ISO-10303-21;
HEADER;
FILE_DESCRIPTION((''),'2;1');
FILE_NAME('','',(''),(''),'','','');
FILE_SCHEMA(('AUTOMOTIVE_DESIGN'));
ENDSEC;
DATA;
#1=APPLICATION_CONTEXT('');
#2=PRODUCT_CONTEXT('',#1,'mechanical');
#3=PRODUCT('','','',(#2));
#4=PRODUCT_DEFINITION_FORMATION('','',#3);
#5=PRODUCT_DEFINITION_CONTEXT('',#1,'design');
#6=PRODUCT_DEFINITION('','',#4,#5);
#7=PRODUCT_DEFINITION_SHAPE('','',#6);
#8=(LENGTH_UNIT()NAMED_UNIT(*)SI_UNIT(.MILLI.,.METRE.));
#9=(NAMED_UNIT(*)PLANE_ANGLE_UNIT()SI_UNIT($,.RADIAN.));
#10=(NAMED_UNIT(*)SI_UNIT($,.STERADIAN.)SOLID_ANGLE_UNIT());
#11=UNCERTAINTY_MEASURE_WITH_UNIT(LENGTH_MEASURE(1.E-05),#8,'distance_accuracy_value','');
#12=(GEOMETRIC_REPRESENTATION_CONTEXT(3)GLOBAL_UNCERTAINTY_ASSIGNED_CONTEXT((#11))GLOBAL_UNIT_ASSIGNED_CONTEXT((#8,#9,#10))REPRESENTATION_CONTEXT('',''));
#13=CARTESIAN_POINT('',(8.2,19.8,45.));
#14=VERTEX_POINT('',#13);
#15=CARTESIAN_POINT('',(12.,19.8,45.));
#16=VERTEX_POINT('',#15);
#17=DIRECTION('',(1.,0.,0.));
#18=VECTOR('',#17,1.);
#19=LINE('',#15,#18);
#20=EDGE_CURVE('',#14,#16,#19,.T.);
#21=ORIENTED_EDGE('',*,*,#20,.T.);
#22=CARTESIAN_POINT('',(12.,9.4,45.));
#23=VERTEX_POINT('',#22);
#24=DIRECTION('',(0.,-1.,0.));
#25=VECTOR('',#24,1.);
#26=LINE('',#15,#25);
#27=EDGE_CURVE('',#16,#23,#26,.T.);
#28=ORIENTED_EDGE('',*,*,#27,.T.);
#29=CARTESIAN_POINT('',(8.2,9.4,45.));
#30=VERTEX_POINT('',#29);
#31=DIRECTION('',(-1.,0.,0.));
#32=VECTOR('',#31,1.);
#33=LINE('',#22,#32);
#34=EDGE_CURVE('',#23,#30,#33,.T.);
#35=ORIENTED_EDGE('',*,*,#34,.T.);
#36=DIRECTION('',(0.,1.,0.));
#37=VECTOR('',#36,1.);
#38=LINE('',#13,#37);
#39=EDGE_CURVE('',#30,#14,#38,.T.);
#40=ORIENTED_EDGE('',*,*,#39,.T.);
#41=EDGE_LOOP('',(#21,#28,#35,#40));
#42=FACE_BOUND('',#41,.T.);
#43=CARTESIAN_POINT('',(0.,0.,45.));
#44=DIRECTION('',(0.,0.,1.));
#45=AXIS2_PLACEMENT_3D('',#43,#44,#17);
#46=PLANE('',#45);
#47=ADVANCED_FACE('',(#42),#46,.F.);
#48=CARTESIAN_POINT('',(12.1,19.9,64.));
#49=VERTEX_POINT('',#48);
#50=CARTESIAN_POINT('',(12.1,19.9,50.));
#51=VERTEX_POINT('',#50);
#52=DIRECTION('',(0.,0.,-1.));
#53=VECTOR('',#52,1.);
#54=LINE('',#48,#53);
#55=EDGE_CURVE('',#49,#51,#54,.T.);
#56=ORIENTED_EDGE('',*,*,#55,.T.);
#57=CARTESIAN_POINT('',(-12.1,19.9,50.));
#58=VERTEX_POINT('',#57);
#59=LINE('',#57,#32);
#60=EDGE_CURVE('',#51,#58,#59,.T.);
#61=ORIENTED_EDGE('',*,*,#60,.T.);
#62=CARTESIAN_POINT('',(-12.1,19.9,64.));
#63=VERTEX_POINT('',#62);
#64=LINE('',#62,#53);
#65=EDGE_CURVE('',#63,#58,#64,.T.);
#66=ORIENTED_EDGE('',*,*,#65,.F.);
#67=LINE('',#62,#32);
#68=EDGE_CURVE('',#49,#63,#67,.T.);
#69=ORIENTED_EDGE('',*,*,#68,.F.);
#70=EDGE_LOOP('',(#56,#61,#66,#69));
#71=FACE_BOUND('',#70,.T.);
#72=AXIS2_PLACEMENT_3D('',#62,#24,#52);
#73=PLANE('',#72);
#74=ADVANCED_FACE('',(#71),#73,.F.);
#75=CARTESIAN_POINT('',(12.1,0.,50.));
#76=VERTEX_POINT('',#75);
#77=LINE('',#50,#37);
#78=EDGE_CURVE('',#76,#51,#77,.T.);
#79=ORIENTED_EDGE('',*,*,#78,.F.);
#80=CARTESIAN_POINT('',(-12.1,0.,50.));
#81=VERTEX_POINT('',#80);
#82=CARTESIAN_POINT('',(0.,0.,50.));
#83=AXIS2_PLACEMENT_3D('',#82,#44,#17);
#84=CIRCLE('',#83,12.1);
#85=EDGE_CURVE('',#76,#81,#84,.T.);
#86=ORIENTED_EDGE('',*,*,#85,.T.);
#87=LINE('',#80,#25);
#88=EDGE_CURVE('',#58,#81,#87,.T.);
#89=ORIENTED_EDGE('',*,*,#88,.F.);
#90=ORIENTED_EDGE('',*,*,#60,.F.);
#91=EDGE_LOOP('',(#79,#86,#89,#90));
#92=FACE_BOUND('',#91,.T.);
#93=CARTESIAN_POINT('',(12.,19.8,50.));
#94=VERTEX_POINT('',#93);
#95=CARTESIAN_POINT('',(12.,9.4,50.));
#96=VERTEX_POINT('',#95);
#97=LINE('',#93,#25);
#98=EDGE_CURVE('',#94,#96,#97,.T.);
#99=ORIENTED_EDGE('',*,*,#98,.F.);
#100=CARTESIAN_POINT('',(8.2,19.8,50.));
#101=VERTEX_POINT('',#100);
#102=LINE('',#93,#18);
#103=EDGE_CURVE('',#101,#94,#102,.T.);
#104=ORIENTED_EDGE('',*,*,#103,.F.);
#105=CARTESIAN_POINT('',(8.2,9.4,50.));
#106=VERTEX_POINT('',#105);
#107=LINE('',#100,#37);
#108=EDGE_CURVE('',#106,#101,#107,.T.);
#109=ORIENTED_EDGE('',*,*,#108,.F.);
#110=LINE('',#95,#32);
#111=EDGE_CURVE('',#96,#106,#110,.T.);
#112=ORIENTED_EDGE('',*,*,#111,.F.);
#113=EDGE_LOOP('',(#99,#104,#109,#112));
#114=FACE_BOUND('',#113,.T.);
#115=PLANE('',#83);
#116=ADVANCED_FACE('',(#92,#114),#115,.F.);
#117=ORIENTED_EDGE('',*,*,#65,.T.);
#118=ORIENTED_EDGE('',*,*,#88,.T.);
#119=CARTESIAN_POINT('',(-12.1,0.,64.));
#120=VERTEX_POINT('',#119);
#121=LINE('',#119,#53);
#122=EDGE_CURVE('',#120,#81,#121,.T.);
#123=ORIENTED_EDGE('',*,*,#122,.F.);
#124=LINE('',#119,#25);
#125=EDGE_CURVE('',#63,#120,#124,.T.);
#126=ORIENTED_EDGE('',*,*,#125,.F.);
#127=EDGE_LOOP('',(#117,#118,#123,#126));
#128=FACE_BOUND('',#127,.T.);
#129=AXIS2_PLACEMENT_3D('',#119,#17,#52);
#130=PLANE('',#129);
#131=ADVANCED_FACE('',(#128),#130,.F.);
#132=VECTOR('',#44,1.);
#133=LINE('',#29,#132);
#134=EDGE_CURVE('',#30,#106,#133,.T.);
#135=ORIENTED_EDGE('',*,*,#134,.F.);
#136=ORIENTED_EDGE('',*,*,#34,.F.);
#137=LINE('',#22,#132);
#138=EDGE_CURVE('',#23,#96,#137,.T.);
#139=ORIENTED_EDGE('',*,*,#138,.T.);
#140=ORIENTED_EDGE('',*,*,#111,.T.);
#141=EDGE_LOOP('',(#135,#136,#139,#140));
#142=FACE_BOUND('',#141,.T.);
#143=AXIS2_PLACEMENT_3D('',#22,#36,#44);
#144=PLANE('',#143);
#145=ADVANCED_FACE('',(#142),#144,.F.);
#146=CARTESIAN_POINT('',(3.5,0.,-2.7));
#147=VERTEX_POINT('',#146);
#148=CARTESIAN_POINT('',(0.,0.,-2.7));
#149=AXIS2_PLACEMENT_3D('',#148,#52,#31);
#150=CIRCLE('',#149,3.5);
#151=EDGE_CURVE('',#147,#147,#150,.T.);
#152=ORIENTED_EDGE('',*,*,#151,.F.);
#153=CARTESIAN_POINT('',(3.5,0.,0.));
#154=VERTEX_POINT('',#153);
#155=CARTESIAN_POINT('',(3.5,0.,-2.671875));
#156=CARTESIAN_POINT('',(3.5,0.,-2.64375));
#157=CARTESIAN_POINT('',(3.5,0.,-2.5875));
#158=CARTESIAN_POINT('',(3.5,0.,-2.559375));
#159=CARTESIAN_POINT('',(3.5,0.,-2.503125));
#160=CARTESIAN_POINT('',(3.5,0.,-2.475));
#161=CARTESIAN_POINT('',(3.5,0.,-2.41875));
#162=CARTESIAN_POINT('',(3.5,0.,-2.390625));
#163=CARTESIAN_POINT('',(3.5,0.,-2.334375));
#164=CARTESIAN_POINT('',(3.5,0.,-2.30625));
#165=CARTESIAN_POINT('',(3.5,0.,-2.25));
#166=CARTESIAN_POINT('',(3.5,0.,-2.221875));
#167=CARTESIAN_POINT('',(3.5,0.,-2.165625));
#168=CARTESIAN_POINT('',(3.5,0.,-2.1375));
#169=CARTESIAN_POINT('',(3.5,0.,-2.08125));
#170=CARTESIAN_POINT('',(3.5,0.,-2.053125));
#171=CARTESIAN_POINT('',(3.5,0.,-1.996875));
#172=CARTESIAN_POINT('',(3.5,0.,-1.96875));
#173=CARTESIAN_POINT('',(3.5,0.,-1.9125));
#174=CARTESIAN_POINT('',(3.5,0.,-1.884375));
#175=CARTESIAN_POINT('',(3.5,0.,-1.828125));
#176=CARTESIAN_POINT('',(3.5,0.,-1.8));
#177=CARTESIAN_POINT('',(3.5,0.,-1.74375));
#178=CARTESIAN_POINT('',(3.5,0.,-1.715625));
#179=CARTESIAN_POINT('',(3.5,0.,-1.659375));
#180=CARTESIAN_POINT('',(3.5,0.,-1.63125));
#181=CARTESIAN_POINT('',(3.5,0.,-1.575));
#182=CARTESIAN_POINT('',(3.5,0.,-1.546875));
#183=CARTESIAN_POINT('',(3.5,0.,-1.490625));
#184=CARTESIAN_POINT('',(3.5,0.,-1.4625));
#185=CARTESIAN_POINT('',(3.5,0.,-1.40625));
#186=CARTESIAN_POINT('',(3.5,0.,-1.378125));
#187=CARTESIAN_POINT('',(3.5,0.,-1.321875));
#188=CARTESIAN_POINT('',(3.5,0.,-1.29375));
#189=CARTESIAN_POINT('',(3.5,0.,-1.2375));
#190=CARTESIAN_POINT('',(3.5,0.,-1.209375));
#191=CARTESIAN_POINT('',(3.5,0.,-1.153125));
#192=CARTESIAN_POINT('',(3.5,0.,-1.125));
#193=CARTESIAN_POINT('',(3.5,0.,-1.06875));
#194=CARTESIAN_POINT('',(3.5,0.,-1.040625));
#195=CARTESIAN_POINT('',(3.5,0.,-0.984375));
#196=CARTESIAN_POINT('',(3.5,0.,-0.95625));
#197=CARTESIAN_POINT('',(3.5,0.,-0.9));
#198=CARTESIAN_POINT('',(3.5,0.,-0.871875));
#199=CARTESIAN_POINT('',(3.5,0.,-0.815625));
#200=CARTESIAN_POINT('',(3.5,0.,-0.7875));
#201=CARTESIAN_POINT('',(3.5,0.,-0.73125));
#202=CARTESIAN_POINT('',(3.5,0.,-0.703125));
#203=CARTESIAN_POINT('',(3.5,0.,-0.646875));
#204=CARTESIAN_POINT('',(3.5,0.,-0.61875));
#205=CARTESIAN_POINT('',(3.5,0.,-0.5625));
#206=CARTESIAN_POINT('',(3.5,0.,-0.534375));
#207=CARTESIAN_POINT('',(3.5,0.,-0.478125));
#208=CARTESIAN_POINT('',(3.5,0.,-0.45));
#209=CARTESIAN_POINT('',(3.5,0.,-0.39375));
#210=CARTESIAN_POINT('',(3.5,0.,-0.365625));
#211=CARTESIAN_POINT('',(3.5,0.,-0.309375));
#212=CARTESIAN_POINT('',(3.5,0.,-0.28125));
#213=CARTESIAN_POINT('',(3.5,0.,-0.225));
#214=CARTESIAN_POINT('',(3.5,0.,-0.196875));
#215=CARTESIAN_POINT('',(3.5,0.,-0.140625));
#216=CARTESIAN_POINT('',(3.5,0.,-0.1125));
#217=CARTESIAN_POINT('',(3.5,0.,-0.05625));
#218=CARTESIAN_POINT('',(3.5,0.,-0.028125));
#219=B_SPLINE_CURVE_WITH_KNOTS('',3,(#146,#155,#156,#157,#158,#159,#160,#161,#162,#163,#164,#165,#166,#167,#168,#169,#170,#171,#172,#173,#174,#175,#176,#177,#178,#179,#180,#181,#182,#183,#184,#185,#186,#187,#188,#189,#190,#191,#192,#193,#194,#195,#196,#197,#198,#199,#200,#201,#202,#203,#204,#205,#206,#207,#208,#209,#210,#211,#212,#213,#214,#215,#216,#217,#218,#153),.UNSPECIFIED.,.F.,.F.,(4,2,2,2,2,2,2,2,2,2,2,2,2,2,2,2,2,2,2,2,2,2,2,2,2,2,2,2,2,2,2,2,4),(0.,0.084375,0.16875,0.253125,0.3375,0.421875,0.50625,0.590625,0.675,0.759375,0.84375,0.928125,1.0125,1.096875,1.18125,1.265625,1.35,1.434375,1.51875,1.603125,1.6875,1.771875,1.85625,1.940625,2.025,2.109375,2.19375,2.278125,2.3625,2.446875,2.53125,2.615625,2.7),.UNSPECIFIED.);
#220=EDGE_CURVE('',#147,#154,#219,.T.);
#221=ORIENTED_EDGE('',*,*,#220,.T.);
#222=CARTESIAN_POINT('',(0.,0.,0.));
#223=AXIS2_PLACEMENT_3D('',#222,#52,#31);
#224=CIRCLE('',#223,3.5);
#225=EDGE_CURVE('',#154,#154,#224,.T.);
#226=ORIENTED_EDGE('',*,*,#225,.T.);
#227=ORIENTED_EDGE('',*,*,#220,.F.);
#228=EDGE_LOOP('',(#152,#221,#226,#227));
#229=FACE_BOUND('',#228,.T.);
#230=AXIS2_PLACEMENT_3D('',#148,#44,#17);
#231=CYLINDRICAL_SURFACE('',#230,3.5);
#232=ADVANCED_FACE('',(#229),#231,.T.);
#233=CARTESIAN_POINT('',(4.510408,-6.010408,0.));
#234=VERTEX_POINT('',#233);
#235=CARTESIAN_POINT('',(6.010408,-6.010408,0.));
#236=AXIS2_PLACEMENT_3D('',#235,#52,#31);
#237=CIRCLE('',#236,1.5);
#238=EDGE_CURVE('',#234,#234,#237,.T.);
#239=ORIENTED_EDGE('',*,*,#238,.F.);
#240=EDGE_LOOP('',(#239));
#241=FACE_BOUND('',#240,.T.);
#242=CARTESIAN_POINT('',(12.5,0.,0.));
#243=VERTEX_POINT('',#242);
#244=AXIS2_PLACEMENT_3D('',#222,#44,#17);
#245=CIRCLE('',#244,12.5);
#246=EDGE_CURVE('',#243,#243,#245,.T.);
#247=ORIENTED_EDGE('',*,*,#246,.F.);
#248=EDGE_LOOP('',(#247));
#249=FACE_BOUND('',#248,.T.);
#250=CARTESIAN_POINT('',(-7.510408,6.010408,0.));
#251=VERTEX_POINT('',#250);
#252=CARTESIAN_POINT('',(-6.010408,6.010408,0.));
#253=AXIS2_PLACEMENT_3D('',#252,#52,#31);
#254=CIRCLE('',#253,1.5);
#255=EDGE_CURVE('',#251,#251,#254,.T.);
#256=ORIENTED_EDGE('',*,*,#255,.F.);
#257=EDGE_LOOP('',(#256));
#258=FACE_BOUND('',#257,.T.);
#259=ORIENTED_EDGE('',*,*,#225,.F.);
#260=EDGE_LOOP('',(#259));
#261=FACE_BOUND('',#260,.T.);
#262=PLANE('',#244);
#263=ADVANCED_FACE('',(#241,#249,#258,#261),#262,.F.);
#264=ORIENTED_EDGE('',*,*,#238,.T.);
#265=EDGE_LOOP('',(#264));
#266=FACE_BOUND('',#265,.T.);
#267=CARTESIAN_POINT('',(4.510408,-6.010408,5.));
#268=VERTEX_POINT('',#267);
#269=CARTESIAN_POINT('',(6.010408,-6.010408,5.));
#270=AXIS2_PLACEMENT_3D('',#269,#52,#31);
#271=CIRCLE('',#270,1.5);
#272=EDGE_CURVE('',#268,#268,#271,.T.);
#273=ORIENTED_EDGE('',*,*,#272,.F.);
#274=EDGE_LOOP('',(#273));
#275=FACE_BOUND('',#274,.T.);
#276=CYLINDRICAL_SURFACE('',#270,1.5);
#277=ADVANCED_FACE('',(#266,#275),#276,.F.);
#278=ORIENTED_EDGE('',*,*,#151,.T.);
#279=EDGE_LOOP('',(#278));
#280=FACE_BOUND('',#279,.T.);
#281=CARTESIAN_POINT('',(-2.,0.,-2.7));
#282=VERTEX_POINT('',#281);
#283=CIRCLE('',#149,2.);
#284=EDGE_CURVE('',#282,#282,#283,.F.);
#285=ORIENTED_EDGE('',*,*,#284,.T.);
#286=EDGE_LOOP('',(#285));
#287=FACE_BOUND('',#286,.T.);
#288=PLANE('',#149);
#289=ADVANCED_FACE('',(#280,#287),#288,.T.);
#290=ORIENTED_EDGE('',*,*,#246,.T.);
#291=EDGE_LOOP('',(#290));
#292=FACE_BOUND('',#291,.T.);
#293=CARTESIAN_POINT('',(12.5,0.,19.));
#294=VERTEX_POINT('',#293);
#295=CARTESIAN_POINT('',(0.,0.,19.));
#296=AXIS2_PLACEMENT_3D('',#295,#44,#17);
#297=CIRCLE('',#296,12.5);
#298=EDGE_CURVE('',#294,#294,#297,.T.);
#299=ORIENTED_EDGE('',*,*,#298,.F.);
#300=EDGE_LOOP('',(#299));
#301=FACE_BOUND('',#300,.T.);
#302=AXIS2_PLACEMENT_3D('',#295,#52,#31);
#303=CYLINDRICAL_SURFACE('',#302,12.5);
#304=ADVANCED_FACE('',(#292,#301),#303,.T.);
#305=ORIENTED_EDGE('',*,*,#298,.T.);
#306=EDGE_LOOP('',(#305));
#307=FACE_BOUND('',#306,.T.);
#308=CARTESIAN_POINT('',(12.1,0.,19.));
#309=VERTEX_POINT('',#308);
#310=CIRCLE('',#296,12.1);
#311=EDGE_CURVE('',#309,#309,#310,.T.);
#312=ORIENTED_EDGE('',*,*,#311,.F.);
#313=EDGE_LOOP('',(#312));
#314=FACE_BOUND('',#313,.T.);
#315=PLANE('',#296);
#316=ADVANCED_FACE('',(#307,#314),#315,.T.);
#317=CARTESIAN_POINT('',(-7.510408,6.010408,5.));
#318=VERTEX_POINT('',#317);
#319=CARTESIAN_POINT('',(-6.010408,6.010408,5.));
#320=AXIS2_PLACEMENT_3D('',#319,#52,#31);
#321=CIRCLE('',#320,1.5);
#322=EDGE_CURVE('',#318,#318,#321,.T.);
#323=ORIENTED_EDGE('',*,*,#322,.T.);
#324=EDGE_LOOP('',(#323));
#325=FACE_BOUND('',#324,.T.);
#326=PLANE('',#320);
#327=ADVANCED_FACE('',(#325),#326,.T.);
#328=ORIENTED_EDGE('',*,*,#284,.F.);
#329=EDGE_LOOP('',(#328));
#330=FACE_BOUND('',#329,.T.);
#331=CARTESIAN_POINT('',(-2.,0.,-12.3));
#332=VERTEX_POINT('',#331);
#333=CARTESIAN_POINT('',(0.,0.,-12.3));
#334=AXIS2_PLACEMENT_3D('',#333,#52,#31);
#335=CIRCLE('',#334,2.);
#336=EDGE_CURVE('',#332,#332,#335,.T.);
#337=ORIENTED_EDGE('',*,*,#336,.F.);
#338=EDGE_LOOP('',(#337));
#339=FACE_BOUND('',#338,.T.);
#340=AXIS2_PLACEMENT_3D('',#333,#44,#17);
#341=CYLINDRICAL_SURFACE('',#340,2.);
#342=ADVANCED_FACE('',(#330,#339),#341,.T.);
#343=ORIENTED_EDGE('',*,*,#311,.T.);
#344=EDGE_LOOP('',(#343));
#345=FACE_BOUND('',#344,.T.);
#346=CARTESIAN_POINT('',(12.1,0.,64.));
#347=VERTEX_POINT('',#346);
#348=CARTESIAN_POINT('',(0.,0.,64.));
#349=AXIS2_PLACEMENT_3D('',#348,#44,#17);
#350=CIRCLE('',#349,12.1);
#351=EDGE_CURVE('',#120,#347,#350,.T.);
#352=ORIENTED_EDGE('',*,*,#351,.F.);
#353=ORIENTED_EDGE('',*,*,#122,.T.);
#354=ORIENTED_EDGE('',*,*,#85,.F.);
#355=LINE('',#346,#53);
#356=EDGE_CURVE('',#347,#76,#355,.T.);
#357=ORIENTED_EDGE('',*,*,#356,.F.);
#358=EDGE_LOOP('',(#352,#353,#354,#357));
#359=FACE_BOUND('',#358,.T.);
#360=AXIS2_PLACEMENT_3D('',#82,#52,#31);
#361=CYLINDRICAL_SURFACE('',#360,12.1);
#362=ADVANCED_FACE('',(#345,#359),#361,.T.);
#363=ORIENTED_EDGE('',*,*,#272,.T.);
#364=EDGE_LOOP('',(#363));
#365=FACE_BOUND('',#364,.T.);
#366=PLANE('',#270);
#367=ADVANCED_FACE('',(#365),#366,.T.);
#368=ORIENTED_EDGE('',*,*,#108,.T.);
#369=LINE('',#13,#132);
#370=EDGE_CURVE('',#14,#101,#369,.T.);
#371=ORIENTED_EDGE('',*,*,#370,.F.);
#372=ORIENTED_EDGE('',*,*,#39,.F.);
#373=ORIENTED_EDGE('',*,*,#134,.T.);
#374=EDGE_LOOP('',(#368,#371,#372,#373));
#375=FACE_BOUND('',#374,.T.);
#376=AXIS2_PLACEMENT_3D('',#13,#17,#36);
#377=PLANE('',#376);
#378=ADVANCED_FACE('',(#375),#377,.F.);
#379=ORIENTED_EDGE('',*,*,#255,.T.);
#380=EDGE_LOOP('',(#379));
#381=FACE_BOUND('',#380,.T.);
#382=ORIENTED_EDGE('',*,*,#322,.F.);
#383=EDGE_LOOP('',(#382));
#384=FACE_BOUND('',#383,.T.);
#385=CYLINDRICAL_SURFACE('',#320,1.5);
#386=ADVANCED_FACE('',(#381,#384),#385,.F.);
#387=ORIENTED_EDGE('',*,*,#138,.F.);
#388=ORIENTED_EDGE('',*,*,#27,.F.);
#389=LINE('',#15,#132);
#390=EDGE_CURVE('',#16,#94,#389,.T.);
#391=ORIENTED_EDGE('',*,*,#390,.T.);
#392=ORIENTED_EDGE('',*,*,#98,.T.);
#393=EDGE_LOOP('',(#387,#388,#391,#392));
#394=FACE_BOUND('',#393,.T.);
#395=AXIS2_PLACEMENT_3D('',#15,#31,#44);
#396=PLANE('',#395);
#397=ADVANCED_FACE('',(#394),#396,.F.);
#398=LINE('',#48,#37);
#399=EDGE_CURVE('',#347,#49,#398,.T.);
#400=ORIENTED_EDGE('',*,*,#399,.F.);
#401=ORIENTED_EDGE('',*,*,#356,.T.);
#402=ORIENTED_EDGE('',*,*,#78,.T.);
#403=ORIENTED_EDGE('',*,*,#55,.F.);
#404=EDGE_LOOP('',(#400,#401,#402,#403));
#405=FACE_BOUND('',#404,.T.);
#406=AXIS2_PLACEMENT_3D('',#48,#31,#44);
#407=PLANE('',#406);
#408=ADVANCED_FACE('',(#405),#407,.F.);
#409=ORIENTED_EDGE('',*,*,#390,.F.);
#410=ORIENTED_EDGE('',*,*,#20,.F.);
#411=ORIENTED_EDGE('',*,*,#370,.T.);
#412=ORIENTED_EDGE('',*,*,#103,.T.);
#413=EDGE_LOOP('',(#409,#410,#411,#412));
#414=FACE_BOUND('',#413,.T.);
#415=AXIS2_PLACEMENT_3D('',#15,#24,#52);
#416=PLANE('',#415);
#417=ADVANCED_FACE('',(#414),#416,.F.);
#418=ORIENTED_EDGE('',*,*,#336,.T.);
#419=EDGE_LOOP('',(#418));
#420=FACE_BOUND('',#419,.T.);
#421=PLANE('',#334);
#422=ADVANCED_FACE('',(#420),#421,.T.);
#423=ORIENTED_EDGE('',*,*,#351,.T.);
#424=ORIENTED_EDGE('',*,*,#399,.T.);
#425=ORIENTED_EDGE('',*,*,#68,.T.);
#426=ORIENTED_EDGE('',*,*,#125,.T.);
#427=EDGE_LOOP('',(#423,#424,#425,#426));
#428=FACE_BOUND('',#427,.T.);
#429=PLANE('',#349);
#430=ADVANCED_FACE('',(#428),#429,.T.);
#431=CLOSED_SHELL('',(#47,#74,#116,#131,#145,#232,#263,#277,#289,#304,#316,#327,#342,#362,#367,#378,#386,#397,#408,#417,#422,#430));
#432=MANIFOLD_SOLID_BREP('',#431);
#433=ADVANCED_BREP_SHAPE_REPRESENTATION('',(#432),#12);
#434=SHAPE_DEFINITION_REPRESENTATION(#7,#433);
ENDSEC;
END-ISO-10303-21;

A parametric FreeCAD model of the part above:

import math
import FreeCAD as App
import Part
import Sketcher

V = App.Vector

doc = App.newDocument("Part")
body = doc.addObject("PartDesign::Body", "Body")

# Sketch on XY plane
sketch1 = body.newObject("Sketcher::SketchObject", "Sketch")
sketch1.AttachmentSupport = (doc.getObject("XY_Plane"), [""])
sketch1.MapMode = "FlatFace"
sketch1.addGeometry(Part.Circle(V(0, 0, 0), V(0, 0, 1), 12), False)
sketch1.addConstraint([
    Sketcher.Constraint("Coincident", 0, 3, -1, 1),
    Sketcher.Constraint("Diameter", 0, 25.0),
])
pad1 = body.newObject("PartDesign::Pad", "Pad")
pad1.Profile = sketch1
pad1.Length = 19

# Sketch on XY plane
sketch2 = body.newObject("Sketcher::SketchObject", "Sketch001")
sketch2.AttachmentSupport = (doc.getObject("XY_Plane"), [""])
sketch2.MapMode = "FlatFace"
sketch2.AttachmentOffset = App.Placement(V(0, 0, 19), App.Rotation())
sketch2.addGeometry(Part.Circle(V(0, 0, 0), V(0, 0, 1), 12), False)
sketch2.addConstraint([
    Sketcher.Constraint("Coincident", 0, 3, -1, 1),
    Sketcher.Constraint("Diameter", 0, 24.2),
])
pad2 = body.newObject("PartDesign::Pad", "Pad001")
pad2.Profile = sketch2
pad2.Length = 31

# Sketch on XY plane
sketch3 = body.newObject("Sketcher::SketchObject", "Sketch002")
sketch3.AttachmentSupport = (doc.getObject("XY_Plane"), [""])
sketch3.MapMode = "FlatFace"
sketch3.AttachmentOffset = App.Placement(V(0, 0, 50), App.Rotation())
sketch3.addGeometry([
    Part.LineSegment(V(-12, 20, 0), V(-12, 0, 0)),
    Part.ArcOfCircle(Part.Circle(V(0, 0, 0), V(0, 0, 1), 12), math.radians(180), math.radians(360)),
    Part.LineSegment(V(12, 0, 0), V(12, 20, 0)),
    Part.LineSegment(V(12, 20, 0), V(-12, 20, 0)),
], False)
sketch3.addConstraint([
    Sketcher.Constraint("Tangent", 0, 2, 1, 1),
    Sketcher.Constraint("Tangent", 1, 2, 2, 1),
    Sketcher.Constraint("Coincident", 2, 2, 3, 1),
    Sketcher.Constraint("Coincident", 3, 2, 0, 1),
    Sketcher.Constraint("Vertical", 0),
    Sketcher.Constraint("Vertical", 2),
    Sketcher.Constraint("Horizontal", 3),
    Sketcher.Constraint("Coincident", 1, 3, -1, 1),
    Sketcher.Constraint("Radius", 1, 12.1),
    Sketcher.Constraint("DistanceY", 0, 2, 0, 1, 19.9),
])
pad3 = body.newObject("PartDesign::Pad", "Pad002")
pad3.Profile = sketch3
pad3.Length = 14

# Sketch on XY plane
sketch4 = body.newObject("Sketcher::SketchObject", "Sketch003")
sketch4.AttachmentSupport = (doc.getObject("XY_Plane"), [""])
sketch4.MapMode = "FlatFace"
sketch4.AttachmentOffset = App.Placement(V(0, 0, 50), App.Rotation())
sketch4.addGeometry([
    Part.LineSegment(V(12, 19.8, 0), V(12, 9.4, 0)),
    Part.LineSegment(V(12, 9.4, 0), V(8.2, 9.4, 0)),
    Part.LineSegment(V(8.2, 9.4, 0), V(8.2, 19.8, 0)),
    Part.LineSegment(V(8.2, 19.8, 0), V(12, 19.8, 0)),
], False)
sketch4.addConstraint([
    Sketcher.Constraint("Coincident", 0, 2, 1, 1),
    Sketcher.Constraint("Coincident", 1, 2, 2, 1),
    Sketcher.Constraint("Coincident", 2, 2, 3, 1),
    Sketcher.Constraint("Coincident", 3, 2, 0, 1),
    Sketcher.Constraint("Vertical", 0),
    Sketcher.Constraint("Horizontal", 1),
    Sketcher.Constraint("Vertical", 2),
    Sketcher.Constraint("Horizontal", 3),
    Sketcher.Constraint("DistanceX", 1, 2, 1, 1, 3.8),
    Sketcher.Constraint("DistanceY", 0, 2, 0, 1, 10.4),
    Sketcher.Constraint("DistanceX", -1, 1, 0, 2, 12.0),
    Sketcher.Constraint("DistanceY", -1, 1, 0, 2, 9.4),
])
pad4 = body.newObject("PartDesign::Pad", "Pad003")
pad4.Profile = sketch4
pad4.Length = 5
pad4.Reversed = True

# Sketch on XY plane
sketch5 = body.newObject("Sketcher::SketchObject", "Sketch004")
sketch5.AttachmentSupport = (doc.getObject("XY_Plane"), [""])
sketch5.MapMode = "FlatFace"
sketch5.addGeometry(Part.Circle(V(0, 0, 0), V(0, 0, 1), 3.5), False)
sketch5.addConstraint([
    Sketcher.Constraint("Coincident", 0, 3, -1, 1),
    Sketcher.Constraint("Diameter", 0, 7.0),
])
pad5 = body.newObject("PartDesign::Pad", "Pad004")
pad5.Profile = sketch5
pad5.Length = 2.7
pad5.Reversed = True

# Sketch on XY plane
sketch6 = body.newObject("Sketcher::SketchObject", "Sketch005")
sketch6.AttachmentSupport = (doc.getObject("XY_Plane"), [""])
sketch6.MapMode = "FlatFace"
sketch6.addGeometry(Part.Circle(V(0, 0, 0), V(0, 0, 1), 2), False)
sketch6.addConstraint([
    Sketcher.Constraint("Coincident", 0, 3, -1, 1),
    Sketcher.Constraint("Diameter", 0, 4.0),
])
pad6 = body.newObject("PartDesign::Pad", "Pad005")
pad6.Profile = sketch6
pad6.Length = 12.3
pad6.Reversed = True

# Sketch on XY plane
sketch7 = body.newObject("Sketcher::SketchObject", "Sketch006")
sketch7.AttachmentSupport = (doc.getObject("XY_Plane"), [""])
sketch7.MapMode = "FlatFace"
sketch7.addGeometry([
    Part.Circle(V(-6, 6, 0), V(0, 0, 1), 1.5),
    Part.Circle(V(6, -6, 0), V(0, 0, 1), 1.5),
], False)
sketch7.addConstraint([
    Sketcher.Constraint("Equal", 0, 1),
    Sketcher.Constraint("Symmetric", 0, 3, 1, 3, -1, 1),
    Sketcher.Constraint("Diameter", 0, 3.0),
    Sketcher.Constraint("DistanceX", 0, 3, -1, 1, 6.010408),
    Sketcher.Constraint("DistanceY", -1, 1, 0, 3, 6.010408),
])
pocket1 = body.newObject("PartDesign::Pocket", "Pocket")
pocket1.Profile = sketch7
pocket1.Length = 5
pocket1.Reversed = True

doc.recompute()
